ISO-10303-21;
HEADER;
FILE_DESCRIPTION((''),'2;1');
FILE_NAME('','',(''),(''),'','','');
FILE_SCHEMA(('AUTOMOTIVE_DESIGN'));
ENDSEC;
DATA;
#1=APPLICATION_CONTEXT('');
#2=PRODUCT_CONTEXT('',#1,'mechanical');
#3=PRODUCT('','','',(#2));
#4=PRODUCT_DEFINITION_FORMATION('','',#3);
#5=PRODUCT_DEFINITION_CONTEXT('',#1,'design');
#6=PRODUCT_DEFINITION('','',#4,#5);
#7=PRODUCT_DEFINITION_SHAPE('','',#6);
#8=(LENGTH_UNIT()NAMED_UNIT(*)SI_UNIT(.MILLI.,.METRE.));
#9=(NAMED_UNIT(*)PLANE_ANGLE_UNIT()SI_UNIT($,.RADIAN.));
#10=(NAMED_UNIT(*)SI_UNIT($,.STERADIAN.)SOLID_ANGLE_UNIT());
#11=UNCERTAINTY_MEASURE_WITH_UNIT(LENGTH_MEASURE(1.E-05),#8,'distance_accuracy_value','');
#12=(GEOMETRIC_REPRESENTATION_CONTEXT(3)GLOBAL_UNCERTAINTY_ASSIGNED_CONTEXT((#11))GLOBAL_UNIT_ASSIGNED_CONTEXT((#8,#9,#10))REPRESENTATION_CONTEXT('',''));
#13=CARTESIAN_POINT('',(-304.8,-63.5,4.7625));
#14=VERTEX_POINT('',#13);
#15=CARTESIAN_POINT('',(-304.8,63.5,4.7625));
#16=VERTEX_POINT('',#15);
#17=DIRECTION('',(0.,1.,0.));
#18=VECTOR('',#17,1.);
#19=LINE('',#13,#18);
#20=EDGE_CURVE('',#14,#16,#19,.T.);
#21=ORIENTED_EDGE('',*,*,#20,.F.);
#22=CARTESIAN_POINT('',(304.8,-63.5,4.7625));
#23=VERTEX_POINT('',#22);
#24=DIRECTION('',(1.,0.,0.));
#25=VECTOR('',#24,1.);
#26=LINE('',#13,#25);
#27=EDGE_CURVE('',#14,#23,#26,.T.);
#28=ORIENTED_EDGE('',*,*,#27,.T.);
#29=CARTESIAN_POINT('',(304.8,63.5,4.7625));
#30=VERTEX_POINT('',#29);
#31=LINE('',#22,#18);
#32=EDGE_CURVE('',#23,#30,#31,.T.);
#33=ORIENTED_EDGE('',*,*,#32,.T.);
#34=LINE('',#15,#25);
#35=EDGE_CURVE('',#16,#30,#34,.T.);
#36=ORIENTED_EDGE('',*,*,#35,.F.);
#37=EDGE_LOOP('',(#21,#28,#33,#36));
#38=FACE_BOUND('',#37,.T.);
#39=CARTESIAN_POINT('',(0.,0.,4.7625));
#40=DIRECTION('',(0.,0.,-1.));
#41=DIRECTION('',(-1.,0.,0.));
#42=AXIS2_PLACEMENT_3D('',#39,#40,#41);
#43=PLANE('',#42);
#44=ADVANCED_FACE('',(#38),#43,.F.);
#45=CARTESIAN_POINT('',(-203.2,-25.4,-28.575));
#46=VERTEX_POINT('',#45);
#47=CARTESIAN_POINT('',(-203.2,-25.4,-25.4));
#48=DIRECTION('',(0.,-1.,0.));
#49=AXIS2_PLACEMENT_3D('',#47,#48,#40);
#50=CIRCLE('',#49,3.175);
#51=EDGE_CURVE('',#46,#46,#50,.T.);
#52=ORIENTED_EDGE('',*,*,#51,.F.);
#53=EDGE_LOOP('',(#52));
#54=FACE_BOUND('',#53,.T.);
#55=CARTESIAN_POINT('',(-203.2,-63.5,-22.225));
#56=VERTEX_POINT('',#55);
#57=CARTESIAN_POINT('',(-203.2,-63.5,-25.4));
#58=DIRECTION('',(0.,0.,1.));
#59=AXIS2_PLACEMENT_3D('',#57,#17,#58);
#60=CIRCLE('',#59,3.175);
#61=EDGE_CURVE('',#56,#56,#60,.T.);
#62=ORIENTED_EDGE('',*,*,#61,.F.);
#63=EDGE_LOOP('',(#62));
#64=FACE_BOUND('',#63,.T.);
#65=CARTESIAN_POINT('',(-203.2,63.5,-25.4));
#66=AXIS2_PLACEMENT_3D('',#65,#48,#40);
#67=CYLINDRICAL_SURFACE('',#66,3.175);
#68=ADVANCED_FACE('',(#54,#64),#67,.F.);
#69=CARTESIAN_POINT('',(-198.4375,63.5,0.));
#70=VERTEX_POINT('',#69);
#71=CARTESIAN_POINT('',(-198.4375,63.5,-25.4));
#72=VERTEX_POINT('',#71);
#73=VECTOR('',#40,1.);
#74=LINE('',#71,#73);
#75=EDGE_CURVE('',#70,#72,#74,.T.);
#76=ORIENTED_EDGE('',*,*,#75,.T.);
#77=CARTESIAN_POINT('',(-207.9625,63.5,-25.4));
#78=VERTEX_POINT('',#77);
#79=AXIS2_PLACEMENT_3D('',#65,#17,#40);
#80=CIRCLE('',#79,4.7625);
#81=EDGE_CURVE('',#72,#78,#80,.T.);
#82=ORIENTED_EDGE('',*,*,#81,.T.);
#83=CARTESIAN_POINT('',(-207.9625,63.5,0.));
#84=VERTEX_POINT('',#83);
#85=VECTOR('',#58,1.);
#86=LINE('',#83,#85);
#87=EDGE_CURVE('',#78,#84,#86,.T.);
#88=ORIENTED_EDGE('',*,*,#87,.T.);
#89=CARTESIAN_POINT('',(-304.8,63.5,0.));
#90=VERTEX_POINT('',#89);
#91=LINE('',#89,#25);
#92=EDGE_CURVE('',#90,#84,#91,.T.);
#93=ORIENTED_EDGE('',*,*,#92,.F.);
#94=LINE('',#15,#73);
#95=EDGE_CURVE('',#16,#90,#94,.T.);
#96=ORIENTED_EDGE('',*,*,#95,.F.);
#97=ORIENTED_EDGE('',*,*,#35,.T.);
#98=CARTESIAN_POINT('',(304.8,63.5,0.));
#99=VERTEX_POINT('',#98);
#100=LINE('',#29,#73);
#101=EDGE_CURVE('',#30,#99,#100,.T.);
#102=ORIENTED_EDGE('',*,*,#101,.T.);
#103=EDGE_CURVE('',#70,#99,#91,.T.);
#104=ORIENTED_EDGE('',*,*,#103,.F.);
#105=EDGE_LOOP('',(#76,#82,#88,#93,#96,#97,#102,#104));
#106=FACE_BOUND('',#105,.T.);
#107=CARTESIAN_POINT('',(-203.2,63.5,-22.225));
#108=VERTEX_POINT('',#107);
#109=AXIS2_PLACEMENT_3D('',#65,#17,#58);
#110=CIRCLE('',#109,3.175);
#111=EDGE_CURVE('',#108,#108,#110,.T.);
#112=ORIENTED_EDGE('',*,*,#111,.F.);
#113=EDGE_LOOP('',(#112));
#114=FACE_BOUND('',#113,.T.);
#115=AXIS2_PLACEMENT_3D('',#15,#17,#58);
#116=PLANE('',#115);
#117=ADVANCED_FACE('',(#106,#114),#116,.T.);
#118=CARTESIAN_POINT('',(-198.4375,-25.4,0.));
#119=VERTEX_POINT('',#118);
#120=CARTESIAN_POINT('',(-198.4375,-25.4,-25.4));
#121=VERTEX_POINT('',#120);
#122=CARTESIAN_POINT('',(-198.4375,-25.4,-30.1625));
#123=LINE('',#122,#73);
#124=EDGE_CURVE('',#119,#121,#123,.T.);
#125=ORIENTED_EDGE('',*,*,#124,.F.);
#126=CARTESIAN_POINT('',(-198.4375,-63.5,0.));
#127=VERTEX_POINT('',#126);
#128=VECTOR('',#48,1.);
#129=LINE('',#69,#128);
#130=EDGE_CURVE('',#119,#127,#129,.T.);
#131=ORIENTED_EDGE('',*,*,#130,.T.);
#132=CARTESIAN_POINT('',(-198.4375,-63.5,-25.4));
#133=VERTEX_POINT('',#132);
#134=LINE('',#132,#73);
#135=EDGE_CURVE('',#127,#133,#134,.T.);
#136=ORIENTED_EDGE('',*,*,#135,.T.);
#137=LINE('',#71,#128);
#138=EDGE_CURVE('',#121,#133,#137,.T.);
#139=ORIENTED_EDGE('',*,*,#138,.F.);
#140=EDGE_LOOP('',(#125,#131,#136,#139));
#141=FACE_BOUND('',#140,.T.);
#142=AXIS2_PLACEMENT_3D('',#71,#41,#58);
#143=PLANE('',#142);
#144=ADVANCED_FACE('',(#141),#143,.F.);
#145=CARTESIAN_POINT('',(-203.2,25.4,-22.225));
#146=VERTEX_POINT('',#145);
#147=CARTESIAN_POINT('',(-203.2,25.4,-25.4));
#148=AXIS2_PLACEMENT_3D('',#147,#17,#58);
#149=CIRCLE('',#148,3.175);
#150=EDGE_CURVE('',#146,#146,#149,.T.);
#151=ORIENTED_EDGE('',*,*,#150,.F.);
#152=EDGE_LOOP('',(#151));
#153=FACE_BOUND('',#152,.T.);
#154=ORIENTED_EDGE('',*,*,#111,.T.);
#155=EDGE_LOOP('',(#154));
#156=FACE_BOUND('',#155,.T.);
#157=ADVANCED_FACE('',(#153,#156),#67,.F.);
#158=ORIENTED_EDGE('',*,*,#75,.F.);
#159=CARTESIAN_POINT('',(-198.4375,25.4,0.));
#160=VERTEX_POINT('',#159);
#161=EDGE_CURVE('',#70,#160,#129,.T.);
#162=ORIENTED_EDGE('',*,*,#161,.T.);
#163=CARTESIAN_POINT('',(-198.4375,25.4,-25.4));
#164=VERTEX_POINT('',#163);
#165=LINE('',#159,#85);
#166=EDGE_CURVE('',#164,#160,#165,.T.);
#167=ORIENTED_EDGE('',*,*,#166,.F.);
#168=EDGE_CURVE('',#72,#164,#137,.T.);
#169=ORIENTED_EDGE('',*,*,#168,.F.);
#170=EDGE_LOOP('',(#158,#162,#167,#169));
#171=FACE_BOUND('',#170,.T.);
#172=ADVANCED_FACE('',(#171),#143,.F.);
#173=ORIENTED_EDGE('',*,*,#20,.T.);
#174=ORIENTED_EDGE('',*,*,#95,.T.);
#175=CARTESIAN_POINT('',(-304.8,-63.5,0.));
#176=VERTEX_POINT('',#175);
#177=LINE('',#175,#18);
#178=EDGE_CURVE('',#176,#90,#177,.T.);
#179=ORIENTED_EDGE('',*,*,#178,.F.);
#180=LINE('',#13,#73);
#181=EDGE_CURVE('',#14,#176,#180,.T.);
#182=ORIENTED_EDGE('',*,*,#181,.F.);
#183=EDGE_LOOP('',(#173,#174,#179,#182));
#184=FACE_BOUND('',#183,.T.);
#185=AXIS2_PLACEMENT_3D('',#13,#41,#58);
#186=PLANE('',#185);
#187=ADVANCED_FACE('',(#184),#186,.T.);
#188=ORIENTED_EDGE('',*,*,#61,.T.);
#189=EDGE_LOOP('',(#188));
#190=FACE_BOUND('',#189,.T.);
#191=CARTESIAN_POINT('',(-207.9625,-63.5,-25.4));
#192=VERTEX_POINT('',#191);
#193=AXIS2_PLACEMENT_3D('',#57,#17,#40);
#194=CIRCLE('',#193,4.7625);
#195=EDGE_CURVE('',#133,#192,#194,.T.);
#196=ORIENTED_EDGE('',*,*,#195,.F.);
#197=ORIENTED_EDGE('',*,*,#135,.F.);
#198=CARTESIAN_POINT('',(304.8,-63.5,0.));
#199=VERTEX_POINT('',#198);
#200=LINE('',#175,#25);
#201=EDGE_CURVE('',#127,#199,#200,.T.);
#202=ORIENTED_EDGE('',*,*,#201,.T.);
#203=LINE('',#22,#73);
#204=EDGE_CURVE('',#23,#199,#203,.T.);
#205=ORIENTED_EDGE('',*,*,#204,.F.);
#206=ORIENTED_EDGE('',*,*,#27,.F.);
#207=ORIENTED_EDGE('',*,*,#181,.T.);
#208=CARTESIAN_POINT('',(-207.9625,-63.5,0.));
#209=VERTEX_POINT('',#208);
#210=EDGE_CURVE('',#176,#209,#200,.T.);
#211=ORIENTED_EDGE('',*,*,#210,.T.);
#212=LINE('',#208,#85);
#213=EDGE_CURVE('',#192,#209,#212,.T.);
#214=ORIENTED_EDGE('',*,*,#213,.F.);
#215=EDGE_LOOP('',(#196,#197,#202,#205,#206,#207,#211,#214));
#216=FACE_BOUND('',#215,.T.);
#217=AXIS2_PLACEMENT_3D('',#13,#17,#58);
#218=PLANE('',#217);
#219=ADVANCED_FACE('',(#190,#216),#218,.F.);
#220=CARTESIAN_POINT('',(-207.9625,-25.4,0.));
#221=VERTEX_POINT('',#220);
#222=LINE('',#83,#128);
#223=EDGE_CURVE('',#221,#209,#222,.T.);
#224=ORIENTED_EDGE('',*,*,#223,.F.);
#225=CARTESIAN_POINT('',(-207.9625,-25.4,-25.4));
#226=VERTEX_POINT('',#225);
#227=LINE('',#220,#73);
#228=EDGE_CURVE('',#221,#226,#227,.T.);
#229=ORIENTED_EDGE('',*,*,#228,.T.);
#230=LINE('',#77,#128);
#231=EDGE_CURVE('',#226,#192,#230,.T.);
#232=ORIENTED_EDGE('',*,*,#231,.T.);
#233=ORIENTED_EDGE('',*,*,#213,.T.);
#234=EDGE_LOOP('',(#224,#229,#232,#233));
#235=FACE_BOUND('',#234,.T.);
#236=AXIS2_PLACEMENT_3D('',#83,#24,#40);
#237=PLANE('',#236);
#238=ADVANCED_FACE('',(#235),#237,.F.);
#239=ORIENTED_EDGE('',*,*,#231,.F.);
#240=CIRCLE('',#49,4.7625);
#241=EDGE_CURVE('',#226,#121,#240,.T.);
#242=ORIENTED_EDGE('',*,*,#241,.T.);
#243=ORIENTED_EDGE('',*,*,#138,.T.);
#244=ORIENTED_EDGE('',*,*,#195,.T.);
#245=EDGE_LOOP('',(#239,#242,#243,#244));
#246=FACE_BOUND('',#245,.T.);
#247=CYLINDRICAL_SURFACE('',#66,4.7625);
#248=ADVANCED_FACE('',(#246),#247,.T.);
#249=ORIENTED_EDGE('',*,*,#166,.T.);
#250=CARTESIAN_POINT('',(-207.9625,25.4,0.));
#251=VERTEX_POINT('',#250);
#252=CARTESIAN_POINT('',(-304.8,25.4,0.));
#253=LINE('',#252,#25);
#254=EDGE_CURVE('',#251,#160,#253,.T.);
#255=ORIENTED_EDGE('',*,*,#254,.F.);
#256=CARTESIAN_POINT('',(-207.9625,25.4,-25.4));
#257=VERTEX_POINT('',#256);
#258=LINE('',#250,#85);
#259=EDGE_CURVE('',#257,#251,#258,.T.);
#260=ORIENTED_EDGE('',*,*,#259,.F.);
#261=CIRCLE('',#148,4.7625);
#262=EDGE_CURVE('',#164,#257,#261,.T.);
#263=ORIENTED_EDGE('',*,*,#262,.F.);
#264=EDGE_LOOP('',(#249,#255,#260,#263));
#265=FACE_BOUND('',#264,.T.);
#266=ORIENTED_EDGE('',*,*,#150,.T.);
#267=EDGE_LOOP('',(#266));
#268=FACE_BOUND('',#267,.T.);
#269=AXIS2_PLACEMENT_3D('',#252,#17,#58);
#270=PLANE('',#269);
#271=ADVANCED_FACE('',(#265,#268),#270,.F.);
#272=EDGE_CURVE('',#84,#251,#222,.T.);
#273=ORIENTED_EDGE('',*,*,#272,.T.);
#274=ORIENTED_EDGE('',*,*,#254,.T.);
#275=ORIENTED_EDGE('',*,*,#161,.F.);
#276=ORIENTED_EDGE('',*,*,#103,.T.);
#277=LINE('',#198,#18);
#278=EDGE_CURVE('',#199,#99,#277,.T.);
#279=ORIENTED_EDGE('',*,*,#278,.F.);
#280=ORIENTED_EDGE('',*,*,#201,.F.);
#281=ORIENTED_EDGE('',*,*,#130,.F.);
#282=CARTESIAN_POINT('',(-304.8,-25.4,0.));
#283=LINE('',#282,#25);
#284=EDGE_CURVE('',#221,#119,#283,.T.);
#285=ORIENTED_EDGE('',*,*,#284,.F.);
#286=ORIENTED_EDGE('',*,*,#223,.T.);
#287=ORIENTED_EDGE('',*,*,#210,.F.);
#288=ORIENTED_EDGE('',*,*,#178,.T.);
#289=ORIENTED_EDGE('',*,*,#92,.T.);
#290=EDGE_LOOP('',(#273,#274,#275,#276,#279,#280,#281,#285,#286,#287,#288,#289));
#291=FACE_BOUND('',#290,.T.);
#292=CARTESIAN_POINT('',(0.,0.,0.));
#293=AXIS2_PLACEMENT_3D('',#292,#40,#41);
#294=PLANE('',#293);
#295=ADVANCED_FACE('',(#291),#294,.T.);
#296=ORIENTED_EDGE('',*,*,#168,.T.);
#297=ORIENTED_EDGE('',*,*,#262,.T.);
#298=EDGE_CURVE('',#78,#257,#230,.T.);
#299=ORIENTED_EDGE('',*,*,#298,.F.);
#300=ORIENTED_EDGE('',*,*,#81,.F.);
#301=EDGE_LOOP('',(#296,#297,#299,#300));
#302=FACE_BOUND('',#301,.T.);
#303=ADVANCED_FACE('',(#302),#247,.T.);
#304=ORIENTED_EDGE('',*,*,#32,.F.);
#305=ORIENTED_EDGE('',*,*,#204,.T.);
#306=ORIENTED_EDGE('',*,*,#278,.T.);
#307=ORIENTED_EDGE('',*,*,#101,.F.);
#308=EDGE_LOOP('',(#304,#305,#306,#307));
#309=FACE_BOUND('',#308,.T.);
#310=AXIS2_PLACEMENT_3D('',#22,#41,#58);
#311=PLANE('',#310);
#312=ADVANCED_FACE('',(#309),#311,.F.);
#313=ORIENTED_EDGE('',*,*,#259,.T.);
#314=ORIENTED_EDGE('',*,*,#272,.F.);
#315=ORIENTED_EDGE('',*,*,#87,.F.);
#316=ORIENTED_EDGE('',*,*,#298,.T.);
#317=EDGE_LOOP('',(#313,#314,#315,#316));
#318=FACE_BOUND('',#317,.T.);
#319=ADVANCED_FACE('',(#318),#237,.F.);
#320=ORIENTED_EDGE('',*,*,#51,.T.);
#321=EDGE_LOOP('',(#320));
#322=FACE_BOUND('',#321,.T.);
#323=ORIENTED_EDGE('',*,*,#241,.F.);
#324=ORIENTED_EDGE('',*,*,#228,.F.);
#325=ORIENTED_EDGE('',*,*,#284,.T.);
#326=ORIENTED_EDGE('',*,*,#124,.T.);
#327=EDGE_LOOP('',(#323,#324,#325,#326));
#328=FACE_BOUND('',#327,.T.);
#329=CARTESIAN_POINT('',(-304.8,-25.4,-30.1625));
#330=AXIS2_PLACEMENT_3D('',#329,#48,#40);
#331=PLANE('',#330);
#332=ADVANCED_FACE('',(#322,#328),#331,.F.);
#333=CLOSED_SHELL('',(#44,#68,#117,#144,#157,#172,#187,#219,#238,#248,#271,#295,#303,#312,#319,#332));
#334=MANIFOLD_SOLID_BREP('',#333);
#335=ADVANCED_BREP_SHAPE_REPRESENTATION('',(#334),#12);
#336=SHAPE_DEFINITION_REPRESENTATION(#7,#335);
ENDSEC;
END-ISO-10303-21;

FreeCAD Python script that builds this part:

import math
import FreeCAD as App
import Part
import Sketcher

V = App.Vector
Q = App.Units.Quantity


def add_polygon(sketch, points):
    """Adds a closed chain of lines whose ends are joined by coincident constraints."""
    first, n = sketch.GeometryCount, len(points)
    for a, b in zip(points, points[1:] + points[:1]):
        sketch.addGeometry(Part.LineSegment(App.Vector(*a, 0), App.Vector(*b, 0)), False)
    for i in range(n):
        sketch.addConstraint(Sketcher.Constraint("Coincident", first + i, 2, first + (i + 1) % n, 1))

doc = App.newDocument("Part")
body = doc.addObject("PartDesign::Body", "Body")

# Sketch on XY plane
sketch1 = body.newObject("Sketcher::SketchObject", "Sketch")
sketch1.AttachmentSupport = (doc.getObject("XY_Plane"), [""])
sketch1.MapMode = "FlatFace"
add_polygon(sketch1, [(-304.8, 63.5), (-304.8, -63.5), (304.8, -63.5), (304.8, 63.5)])  # lines 0-3
sketch1.addConstraint([
    Sketcher.Constraint("Vertical", 0),
    Sketcher.Constraint("Horizontal", 1),
    Sketcher.Constraint("Vertical", 2),
    Sketcher.Constraint("Horizontal", 3),
    Sketcher.Constraint("Symmetric", 0, 2, 2, 2, -1, 1),
    Sketcher.Constraint("DistanceX", 1, 1, 1, 2, Q("24 in")),
    Sketcher.Constraint("DistanceY", 0, 2, 0, 1, Q("5 in")),
])
pad1 = body.newObject("PartDesign::Pad", "Pad")
pad1.Profile = sketch1
pad1.Length = Q("0.1875 in")

# Sketch on XZ plane
sketch2 = body.newObject("Sketcher::SketchObject", "Sketch001")
sketch2.AttachmentSupport = (doc.getObject("XZ_Plane"), [""])
sketch2.MapMode = "FlatFace"
sketch2.addGeometry([
    Part.LineSegment(V(-207.9625, -25.4, 0), V(-207.9625, 0, 0)),  # 0
    Part.LineSegment(V(-207.9625, 0, 0), V(-198.4375, 0, 0)),  # 1
    Part.LineSegment(V(-198.4375, 0, 0), V(-198.4375, -25.4, 0)),  # 2
    Part.ArcOfCircle(Part.Circle(V(-203.2, -25.4, 0), V(0, 0, 1), 4.7625), math.radians(180), math.radians(360)),  # 3
    Part.Circle(V(-203.2, -25.4, 0), V(0, 0, 1), 3.175),  # 4
], False)
sketch2.addConstraint([
    Sketcher.Constraint("Coincident", 0, 2, 1, 1),
    Sketcher.Constraint("Coincident", 1, 2, 2, 1),
    Sketcher.Constraint("Tangent", 2, 2, 3, 2),
    Sketcher.Constraint("Tangent", 3, 1, 0, 1),
    Sketcher.Constraint("Vertical", 0),
    Sketcher.Constraint("Horizontal", 1),
    Sketcher.Constraint("Vertical", 2),
    Sketcher.Constraint("Coincident", 4, 3, 3, 3),
    Sketcher.Constraint("PointOnObject", 0, 2, -1),
    Sketcher.Constraint("Diameter", 4, Q("0.25 in")),
    Sketcher.Constraint("DistanceY", 0, 1, 0, 2, Q("1 in")),
    Sketcher.Constraint("DistanceX", 3, 3, -1, 1, Q("8 in")),
    Sketcher.Constraint("Radius", 3, Q("0.1875 in")),
])
pad2 = body.newObject("PartDesign::Pad", "Pad001")
pad2.Profile = sketch2
pad2.Length = Q("5 in")
pad2.Midplane = True

# Sketch on YZ plane
sketch3 = body.newObject("Sketcher::SketchObject", "Sketch002")
sketch3.AttachmentSupport = (doc.getObject("YZ_Plane"), [""])
sketch3.MapMode = "FlatFace"
sketch3.AttachmentOffset = App.Placement(V(0, 0, -7.8125 * 25.4), App.Rotation())
add_polygon(sketch3, [(25.4, 0), (-25.4, 0), (-25.4, -30.1625), (25.4, -30.1625)])  # lines 0-3
sketch3.addConstraint([
    Sketcher.Constraint("Horizontal", 0),
    Sketcher.Constraint("Vertical", 1),
    Sketcher.Constraint("Horizontal", 2),
    Sketcher.Constraint("Vertical", 3),
    Sketcher.Constraint("Symmetric", 0, 2, 3, 2, -1, 1),
    Sketcher.Constraint("DistanceX", 0, 2, 0, 1, Q("2 in")),
    Sketcher.Constraint("DistanceY", 1, 2, 1, 1, Q("1.1875 in")),
])
pocket1 = body.newObject("PartDesign::Pocket", "Pocket")
pocket1.Profile = sketch3
pocket1.Type = "ThroughAll"

doc.recompute()
